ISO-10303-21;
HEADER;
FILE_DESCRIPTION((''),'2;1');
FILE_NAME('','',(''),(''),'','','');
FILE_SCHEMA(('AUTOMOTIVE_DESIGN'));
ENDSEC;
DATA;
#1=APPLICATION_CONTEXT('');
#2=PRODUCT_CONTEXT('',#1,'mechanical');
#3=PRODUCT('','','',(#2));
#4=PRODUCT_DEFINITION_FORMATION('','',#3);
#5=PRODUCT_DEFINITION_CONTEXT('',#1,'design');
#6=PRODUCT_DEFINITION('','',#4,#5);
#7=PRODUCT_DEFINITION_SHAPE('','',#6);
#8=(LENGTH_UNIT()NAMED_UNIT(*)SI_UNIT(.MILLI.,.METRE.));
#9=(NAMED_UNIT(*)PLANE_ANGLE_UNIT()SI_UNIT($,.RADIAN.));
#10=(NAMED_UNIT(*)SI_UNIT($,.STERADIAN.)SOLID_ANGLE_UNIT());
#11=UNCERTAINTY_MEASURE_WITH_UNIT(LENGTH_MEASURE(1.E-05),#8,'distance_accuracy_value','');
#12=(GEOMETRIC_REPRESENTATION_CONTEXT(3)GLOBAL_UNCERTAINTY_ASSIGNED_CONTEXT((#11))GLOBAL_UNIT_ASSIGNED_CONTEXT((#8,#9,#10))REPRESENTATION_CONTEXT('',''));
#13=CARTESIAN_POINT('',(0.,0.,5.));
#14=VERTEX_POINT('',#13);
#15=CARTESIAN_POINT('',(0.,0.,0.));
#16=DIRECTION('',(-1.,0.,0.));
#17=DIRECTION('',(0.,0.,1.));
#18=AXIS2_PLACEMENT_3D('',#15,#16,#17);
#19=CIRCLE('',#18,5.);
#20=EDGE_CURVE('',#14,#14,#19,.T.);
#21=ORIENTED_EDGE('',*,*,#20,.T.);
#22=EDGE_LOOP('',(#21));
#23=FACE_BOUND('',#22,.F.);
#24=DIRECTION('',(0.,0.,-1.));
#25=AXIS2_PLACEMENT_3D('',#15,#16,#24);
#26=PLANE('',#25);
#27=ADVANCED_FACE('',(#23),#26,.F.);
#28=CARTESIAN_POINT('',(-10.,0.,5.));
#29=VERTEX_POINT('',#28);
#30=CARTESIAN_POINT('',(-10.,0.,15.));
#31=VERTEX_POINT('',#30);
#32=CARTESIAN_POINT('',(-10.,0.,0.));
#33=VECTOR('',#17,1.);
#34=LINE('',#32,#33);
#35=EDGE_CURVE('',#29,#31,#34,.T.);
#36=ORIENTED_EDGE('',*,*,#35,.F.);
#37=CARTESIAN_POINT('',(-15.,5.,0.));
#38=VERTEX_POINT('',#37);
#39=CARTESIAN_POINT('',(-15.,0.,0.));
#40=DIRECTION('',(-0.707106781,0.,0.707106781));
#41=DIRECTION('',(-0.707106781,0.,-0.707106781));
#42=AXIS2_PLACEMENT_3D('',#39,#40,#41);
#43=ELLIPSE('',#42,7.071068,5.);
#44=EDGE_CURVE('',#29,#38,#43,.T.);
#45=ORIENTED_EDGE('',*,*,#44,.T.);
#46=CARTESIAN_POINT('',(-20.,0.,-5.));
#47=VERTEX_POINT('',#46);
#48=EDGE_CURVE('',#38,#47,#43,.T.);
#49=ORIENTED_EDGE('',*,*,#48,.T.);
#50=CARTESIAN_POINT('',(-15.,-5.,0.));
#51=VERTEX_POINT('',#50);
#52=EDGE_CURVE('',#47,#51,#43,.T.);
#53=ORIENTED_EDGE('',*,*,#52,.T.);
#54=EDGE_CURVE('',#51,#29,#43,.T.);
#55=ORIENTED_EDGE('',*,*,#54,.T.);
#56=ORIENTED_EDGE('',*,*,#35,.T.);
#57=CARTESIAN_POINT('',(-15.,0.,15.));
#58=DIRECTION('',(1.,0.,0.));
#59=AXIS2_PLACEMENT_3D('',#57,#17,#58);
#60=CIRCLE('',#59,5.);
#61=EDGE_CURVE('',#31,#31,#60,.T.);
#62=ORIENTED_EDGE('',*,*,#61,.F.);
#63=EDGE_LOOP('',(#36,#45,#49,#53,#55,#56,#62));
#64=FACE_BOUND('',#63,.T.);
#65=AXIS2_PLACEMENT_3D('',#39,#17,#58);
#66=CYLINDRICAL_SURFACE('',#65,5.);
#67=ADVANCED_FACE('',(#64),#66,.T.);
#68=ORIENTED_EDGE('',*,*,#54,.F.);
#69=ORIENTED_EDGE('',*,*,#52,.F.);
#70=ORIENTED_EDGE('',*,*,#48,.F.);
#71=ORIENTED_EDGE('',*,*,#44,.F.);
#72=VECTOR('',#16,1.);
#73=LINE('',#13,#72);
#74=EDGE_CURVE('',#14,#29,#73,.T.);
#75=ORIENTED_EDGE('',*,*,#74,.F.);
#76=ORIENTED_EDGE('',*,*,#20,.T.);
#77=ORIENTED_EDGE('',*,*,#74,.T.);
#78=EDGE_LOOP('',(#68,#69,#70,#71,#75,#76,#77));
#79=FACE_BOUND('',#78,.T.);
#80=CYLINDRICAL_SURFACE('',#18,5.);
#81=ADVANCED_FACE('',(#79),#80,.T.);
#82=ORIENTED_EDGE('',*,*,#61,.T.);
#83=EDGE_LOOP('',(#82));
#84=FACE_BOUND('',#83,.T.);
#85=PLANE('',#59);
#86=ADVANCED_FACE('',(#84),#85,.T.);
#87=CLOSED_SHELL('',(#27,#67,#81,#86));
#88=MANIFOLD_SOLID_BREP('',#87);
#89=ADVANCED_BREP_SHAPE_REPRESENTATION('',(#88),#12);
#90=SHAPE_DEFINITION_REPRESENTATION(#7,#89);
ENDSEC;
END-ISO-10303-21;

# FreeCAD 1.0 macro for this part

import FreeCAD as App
import Part
import Sketcher
from FreeCAD import Vector

doc = App.newDocument("Part")
body = doc.addObject("PartDesign::Body", "Body")

# Sketch on YZ plane
sketch1 = body.newObject("Sketcher::SketchObject", "Sketch")
sketch1.AttachmentSupport = (doc.getObject("YZ_Plane"), [""])
sketch1.MapMode = "FlatFace"
sketch1.addGeometry(Part.Circle(Vector(0, 0, 0), Vector(0, 0, 1), 5), False)
sketch1.addConstraint(Sketcher.Constraint("Coincident", 0, 3, -1, 1))
sketch1.addConstraint(Sketcher.Constraint("Diameter", 0, 10.0))

# Sketch on XZ plane
sketch2 = body.newObject("Sketcher::SketchObject", "Sketch001")
sketch2.AttachmentSupport = (doc.getObject("XZ_Plane"), [""])
sketch2.MapMode = "FlatFace"
sketch2.addGeometry(Part.LineSegment(Vector(0, 0, 0), Vector(-15, 0, 0)), False)
sketch2.addGeometry(Part.LineSegment(Vector(-15, 0, 0), Vector(-15, 15, 0)), False)
sketch2.addConstraint(Sketcher.Constraint("Coincident", 0, 2, 1, 1))
sketch2.addConstraint(Sketcher.Constraint("Horizontal", 0))
sketch2.addConstraint(Sketcher.Constraint("Vertical", 1))
sketch2.addConstraint(Sketcher.Constraint("Coincident", 0, 1, -1, 1))
sketch2.addConstraint(Sketcher.Constraint("Equal", 0, 1))
sketch2.addConstraint(Sketcher.Constraint("DistanceX", 0, 2, 0, 1, 15.0))
doc.recompute()

additivepipe = body.newObject("PartDesign::AdditivePipe", "AdditivePipe")
additivepipe.Profile = sketch1
additivepipe.Spine = (sketch2, ["Edge1", "Edge2"])
additivepipe.Transition = "Right corner"

doc.recompute()
